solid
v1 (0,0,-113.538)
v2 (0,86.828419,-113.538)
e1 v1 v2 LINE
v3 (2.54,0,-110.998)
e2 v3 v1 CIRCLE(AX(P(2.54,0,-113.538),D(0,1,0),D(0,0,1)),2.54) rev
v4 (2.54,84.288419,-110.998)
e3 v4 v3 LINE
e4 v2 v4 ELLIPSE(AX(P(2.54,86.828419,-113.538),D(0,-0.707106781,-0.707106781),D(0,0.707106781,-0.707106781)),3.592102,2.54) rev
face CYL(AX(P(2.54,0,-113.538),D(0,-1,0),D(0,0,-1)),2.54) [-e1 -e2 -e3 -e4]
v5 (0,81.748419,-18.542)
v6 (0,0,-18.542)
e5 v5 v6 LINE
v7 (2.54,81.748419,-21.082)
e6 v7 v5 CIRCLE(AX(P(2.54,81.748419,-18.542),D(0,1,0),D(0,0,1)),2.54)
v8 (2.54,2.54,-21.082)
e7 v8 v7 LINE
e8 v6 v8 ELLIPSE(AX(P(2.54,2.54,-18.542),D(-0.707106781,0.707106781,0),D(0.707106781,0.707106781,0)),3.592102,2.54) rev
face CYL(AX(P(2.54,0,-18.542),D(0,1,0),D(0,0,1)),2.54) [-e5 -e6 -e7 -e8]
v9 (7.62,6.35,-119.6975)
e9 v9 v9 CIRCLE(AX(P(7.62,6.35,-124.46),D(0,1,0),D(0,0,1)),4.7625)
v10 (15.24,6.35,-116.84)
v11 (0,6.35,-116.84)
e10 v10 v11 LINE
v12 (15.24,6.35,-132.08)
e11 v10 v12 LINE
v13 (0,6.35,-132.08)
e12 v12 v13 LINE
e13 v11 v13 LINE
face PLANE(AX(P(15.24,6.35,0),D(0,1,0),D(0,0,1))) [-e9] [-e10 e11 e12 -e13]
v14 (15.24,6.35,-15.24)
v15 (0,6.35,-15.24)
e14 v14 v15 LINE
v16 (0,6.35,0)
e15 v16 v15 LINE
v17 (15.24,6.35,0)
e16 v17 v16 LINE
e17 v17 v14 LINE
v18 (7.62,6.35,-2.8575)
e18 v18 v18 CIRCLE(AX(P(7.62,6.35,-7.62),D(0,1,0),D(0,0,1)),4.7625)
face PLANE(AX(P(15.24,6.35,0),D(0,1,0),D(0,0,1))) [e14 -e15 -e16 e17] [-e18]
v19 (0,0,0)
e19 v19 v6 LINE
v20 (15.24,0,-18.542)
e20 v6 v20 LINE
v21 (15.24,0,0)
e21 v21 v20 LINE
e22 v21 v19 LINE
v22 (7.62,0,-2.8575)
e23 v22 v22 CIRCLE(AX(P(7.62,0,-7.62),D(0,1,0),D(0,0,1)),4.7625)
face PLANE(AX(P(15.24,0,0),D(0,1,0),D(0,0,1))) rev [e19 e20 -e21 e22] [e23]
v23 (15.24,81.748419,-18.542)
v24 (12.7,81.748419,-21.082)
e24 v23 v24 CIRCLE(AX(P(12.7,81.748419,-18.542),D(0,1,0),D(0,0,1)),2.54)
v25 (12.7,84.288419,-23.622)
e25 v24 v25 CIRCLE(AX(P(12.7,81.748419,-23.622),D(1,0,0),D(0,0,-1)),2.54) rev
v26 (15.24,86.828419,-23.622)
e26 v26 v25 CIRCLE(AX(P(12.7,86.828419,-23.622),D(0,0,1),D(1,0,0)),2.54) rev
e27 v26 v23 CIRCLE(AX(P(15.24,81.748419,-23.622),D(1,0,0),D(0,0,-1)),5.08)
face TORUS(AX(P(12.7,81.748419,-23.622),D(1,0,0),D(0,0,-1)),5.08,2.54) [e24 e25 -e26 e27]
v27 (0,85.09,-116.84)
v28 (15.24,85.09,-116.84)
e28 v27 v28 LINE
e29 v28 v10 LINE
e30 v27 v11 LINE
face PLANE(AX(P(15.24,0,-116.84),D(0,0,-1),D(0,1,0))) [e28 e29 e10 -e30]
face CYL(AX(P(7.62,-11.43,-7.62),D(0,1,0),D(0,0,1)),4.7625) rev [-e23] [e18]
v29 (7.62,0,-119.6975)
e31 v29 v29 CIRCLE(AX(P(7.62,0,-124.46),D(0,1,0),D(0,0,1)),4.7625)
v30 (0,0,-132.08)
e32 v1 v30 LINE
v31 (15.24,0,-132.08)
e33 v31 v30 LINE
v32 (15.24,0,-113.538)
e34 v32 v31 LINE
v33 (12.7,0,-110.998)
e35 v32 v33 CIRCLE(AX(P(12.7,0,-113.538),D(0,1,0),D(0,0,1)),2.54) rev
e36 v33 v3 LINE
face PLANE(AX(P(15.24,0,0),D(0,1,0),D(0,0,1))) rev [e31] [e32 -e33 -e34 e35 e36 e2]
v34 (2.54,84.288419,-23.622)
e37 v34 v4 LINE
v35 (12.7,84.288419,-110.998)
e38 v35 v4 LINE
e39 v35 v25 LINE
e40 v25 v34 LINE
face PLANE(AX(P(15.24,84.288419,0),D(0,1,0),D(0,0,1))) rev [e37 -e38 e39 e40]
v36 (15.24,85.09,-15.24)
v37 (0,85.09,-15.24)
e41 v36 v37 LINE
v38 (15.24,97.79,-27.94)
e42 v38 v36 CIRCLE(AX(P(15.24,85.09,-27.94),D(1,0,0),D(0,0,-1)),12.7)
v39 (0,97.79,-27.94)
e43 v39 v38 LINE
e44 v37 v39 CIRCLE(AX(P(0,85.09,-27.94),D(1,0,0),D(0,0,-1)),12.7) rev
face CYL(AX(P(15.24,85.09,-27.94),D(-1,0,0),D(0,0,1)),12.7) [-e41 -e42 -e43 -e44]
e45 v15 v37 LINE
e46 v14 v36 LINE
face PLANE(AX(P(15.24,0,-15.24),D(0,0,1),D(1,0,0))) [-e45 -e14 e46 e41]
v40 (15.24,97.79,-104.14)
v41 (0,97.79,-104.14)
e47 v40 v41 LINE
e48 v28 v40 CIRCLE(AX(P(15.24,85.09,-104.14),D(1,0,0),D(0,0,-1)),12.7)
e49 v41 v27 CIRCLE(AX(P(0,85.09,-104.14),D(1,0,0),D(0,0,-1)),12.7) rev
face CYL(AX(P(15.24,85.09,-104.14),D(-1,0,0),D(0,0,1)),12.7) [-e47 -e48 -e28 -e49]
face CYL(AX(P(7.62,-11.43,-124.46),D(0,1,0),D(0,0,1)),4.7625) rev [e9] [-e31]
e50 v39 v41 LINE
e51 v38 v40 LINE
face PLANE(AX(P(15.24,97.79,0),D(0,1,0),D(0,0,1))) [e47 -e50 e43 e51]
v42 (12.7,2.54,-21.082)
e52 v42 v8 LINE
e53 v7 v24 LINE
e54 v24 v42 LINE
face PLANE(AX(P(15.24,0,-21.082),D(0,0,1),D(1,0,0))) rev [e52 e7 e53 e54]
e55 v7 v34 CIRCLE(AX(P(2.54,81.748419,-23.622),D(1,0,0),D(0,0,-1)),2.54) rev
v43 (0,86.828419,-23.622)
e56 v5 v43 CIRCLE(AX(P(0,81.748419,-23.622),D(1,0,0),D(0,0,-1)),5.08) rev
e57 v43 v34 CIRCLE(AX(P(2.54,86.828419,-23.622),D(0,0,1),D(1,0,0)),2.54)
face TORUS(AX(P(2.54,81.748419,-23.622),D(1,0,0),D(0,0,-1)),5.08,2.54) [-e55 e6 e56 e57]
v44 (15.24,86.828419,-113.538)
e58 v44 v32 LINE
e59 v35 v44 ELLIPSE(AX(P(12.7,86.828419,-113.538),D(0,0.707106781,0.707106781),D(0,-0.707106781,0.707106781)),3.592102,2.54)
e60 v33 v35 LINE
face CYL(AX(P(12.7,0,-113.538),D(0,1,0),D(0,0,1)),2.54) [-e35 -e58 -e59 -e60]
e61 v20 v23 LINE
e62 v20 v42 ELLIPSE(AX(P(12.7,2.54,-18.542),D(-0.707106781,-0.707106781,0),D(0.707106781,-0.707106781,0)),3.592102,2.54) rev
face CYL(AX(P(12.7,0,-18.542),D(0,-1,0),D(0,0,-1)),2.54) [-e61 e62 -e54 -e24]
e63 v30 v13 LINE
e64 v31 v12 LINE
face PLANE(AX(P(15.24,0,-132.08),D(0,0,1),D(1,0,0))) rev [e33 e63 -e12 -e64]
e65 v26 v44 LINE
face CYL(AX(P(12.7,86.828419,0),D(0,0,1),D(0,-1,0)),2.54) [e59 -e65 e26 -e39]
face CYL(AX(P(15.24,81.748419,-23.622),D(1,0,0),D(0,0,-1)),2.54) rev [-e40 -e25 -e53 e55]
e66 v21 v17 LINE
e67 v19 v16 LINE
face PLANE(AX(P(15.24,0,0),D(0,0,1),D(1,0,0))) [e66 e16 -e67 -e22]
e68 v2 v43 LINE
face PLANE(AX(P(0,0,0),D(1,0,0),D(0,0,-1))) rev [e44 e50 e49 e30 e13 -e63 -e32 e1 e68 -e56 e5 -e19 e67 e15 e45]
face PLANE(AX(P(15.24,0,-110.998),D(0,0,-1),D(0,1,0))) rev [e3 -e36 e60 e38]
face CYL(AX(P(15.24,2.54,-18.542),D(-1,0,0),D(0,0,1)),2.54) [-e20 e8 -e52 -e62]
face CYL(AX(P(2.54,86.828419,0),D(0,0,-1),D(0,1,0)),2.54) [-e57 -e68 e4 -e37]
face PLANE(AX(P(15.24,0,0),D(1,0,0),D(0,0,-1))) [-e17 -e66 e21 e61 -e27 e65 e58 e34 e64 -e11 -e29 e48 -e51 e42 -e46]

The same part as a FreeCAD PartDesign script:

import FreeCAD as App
import Part
import Sketcher

V = App.Vector
Q = App.Units.Quantity


def edges_at(feature, points):
    """Names of the edges that pass closest to the given points."""
    edges = feature.Shape.Edges
    near = lambda p: min(range(len(edges)), key=lambda i: edges[i].distToShape(Part.Vertex(*p))[0])
    return sorted({f"Edge{near(p) + 1}" for p in points})

doc = App.newDocument("Part")
body = doc.addObject("PartDesign::Body", "Body")

# Sketch on YZ plane
sketch1 = body.newObject("Sketcher::SketchObject", "Sketch")
sketch1.AttachmentSupport = (doc.getObject("YZ_Plane"), [""])
sketch1.MapMode = "FlatFace"
sketch1.addGeometry(Part.LineSegment(V(6, 0, 0), V(0, 0, 0)), False)
sketch1.addGeometry(Part.LineSegment(V(0, 0, 0), V(0, -21, 0)), False)
sketch1.addGeometry(Part.LineSegment(V(0, -21, 0), V(84, -21, 0)), False)
sketch1.addGeometry(Part.LineSegment(V(84, -21, 0), V(84, -111, 0)), False)
sketch1.addGeometry(Part.LineSegment(V(84, -111, 0), V(0, -111, 0)), False)
sketch1.addGeometry(Part.LineSegment(V(0, -111, 0), V(0, -132, 0)), False)
sketch1.addGeometry(Part.LineSegment(V(0, -132, 0), V(6, -132, 0)), False)
sketch1.addGeometry(Part.LineSegment(V(6, -132, 0), V(6, -117, 0)), False)
sketch1.addGeometry(Part.LineSegment(V(6, -117, 0), V(98, -117, 0)), False)
sketch1.addGeometry(Part.LineSegment(V(98, -117, 0), V(98, -15, 0)), False)
sketch1.addGeometry(Part.LineSegment(V(98, -15, 0), V(6, -15, 0)), False)
sketch1.addGeometry(Part.LineSegment(V(6, -15, 0), V(6, 0, 0)), False)
sketch1.addConstraint(Sketcher.Constraint("Coincident", 0, 2, 1, 1))
sketch1.addConstraint(Sketcher.Constraint("Coincident", 1, 2, 2, 1))
sketch1.addConstraint(Sketcher.Constraint("Coincident", 2, 2, 3, 1))
sketch1.addConstraint(Sketcher.Constraint("Coincident", 3, 2, 4, 1))
sketch1.addConstraint(Sketcher.Constraint("Coincident", 4, 2, 5, 1))
sketch1.addConstraint(Sketcher.Constraint("Coincident", 5, 2, 6, 1))
sketch1.addConstraint(Sketcher.Constraint("Coincident", 6, 2, 7, 1))
sketch1.addConstraint(Sketcher.Constraint("Coincident", 7, 2, 8, 1))
sketch1.addConstraint(Sketcher.Constraint("Coincident", 8, 2, 9, 1))
sketch1.addConstraint(Sketcher.Constraint("Coincident", 9, 2, 10, 1))
sketch1.addConstraint(Sketcher.Constraint("Coincident", 10, 2, 11, 1))
sketch1.addConstraint(Sketcher.Constraint("Coincident", 11, 2, 0, 1))
sketch1.addConstraint(Sketcher.Constraint("Horizontal", 0))
sketch1.addConstraint(Sketcher.Constraint("Vertical", 1))
sketch1.addConstraint(Sketcher.Constraint("Horizontal", 2))
sketch1.addConstraint(Sketcher.Constraint("Vertical", 3))
sketch1.addConstraint(Sketcher.Constraint("Horizontal", 4))
sketch1.addConstraint(Sketcher.Constraint("Vertical", 5))
sketch1.addConstraint(Sketcher.Constraint("Horizontal", 6))
sketch1.addConstraint(Sketcher.Constraint("Vertical", 7))
sketch1.addConstraint(Sketcher.Constraint("Horizontal", 8))
sketch1.addConstraint(Sketcher.Constraint("Vertical", 9))
sketch1.addConstraint(Sketcher.Constraint("Horizontal", 10))
sketch1.addConstraint(Sketcher.Constraint("Vertical", 11))
sketch1.addConstraint(Sketcher.Constraint("Coincident", 0, 2, -1, 1))
sketch1.addConstraint(Sketcher.Constraint("PointOnObject", 4, 2, -2))
sketch1.addConstraint(Sketcher.Constraint("Vertical", 7, 2, 10, 2))
sketch1.addConstraint(Sketcher.Constraint("Equal", 1, 5))
sketch1.addConstraint(Sketcher.Constraint("Equal", 7, 11))
sketch1.addConstraint(Sketcher.Constraint("DistanceY", 9, 1, 9, 2, Q("4 in")))
sketch1.addConstraint(Sketcher.Constraint("DistanceX", 8, 1, 8, 2, Q("3.6 in")))
sketch1.addConstraint(Sketcher.Constraint("DistanceY", 7, 1, 7, 2, Q("0.6 in")))
sketch1.addConstraint(Sketcher.Constraint("DistanceX", 0, 2, 0, 1, Q("0.25 in")))
sketch1.addConstraint(Sketcher.Constraint("DistanceY", 1, 2, 1, 1, Q("0.83 in")))
sketch1.addConstraint(Sketcher.Constraint("DistanceX", 2, 1, 2, 2, Q("84.288419 mm")))
pad1 = body.newObject("PartDesign::Pad", "Pad")
pad1.Profile = sketch1
pad1.Length = Q("0.6 in")
doc.recompute()

fillet = body.newObject("PartDesign::Fillet", "Fillet")
fillet.Base = (pad1, edges_at(pad1, [(7.62, 97.79, -15.24), (7.62, 97.79, -116.84)]))
fillet.Radius = Q("0.5 in")

# Sketch on XZ plane
sketch2 = body.newObject("Sketcher::SketchObject", "Sketch001")
sketch2.AttachmentSupport = (doc.getObject("XZ_Plane"), [""])
sketch2.MapMode = "FlatFace"
sketch2.AttachmentOffset = App.Placement(V(0, 0, -0.25 * 25.4), App.Rotation())
sketch2.addGeometry(Part.Circle(V(7.6, -7.6, 0), V(0, 0, 1), 4.8), False)
sketch2.addConstraint(Sketcher.Constraint("Diameter", 0, Q("0.375 in")))
sketch2.addConstraint(Sketcher.Constraint("DistanceX", -1, 1, 0, 3, Q("0.3 in")))
sketch2.addConstraint(Sketcher.Constraint("DistanceY", 0, 3, -1, 1, Q("0.3 in")))
pocket1 = body.newObject("PartDesign::Pocket", "Pocket")
pocket1.Profile = sketch2
pocket1.Length = Q("0.7 in")
pocket1.Reversed = True
doc.recompute()

fillet2 = body.newObject("PartDesign::Fillet", "Fillet001")
fillet2.Base = (pocket1, edges_at(pocket1, [
    (15.24, 84.288, -66.04),
    (15.24, 42.144, -110.998),
    (0, 42.144, -110.998),
    (0, 84.288, -66.04),
    (0, 42.144, -21.082),
    (7.62, 0, -21.082),
    (7.62, 84.288, -21.082),
    (15.24, 42.144, -21.082),
]))
fillet2.Radius = Q("0.1 in")
doc.recompute()

linearpattern = body.newObject("PartDesign::LinearPattern", "LinearPattern")
linearpattern.Originals = [pocket1]
linearpattern.Direction = (doc.getObject("Z_Axis"), [""])
linearpattern.Mode = "offset"
linearpattern.Offset = Q("4.6 in")
linearpattern.Occurrences = 2
linearpattern.Reversed = True
body.Tip = linearpattern

doc.recompute()
